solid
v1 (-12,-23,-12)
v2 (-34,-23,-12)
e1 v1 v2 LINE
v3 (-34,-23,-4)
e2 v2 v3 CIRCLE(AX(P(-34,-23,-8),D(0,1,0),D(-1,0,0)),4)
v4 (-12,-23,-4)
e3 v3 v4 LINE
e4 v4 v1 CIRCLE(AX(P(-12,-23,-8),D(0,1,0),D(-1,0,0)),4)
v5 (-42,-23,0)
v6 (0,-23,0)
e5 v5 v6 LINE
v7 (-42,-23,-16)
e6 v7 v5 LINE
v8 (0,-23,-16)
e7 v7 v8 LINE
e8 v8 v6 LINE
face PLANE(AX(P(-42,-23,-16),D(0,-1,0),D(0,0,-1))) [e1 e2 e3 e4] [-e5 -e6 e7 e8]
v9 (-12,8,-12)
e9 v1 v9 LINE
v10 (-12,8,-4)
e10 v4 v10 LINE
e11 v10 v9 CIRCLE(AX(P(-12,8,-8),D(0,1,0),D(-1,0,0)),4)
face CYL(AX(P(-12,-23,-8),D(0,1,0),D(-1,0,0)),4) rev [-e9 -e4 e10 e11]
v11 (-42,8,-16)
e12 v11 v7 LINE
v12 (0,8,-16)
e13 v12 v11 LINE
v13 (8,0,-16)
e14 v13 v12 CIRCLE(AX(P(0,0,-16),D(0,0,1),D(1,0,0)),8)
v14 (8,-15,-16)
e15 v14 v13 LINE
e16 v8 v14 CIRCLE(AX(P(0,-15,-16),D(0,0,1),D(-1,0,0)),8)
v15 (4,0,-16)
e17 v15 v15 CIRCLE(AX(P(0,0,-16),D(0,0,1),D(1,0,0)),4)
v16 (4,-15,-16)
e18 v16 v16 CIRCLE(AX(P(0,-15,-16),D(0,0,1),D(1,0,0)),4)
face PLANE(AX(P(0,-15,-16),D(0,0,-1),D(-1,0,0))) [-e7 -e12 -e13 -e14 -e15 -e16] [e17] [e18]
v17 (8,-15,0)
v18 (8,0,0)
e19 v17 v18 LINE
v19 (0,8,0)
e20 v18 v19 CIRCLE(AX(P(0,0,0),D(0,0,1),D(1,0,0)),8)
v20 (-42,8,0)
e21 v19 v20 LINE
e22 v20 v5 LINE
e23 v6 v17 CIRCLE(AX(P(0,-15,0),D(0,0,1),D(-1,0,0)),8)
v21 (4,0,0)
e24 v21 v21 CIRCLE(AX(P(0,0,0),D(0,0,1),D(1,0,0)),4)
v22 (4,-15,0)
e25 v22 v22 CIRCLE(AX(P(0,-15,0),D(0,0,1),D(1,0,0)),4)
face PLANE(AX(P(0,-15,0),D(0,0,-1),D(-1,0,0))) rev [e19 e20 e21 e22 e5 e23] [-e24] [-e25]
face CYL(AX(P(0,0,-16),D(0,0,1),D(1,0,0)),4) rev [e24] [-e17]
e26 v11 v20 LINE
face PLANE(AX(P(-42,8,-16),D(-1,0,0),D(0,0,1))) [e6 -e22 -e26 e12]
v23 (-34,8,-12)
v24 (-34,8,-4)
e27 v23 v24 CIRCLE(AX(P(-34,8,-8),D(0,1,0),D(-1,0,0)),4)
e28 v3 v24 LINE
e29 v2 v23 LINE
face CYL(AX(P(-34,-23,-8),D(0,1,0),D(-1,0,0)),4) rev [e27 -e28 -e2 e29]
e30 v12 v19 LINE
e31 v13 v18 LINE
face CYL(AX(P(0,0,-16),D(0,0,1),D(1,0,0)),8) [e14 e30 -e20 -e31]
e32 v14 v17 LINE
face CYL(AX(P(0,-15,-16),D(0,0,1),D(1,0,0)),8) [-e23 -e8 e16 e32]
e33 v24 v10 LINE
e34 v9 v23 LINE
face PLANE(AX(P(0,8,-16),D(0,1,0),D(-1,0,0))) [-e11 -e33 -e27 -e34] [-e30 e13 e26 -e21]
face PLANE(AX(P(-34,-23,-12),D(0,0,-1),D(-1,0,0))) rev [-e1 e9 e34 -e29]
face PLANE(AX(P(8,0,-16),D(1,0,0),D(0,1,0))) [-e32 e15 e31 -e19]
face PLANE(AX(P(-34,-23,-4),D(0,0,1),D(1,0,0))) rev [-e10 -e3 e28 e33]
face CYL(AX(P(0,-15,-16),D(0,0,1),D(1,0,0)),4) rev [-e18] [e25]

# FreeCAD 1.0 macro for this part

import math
import FreeCAD as App
import Part
import Sketcher
from FreeCAD import Vector

doc = App.newDocument("Part")
body = doc.addObject("PartDesign::Body", "Body")

# Sketch on XY plane
sketch1 = doc.addObject("Sketcher::SketchObject", "Sketch")
body.addObject(sketch1)
sketch1.AttachmentSupport = (doc.XY_Plane, [""])
sketch1.MapMode = "FlatFace"
sketch1.addGeometry([
    Part.LineSegment(Vector(8, -15, 0), Vector(8, 0, 0)),  # 0
    Part.ArcOfCircle(Part.Circle(Vector(0, 0, 0), Vector(0, 0, 1), 8), math.radians(0), math.radians(90)),  # 1
    Part.LineSegment(Vector(0, 8, 0), Vector(-42, 8, 0)),  # 2
    Part.LineSegment(Vector(-42, 8, 0), Vector(-42, -23, 0)),  # 3
    Part.LineSegment(Vector(-42, -23, 0), Vector(0, -23, 0)),  # 4
    Part.ArcOfCircle(Part.Circle(Vector(0, -15, 0), Vector(0, 0, 1), 8), math.radians(-90), math.radians(0)),  # 5
    Part.Circle(Vector(0, -15, 0), Vector(0, 0, 1), 4),  # 6
    Part.Circle(Vector(0, 0, 0), Vector(0, 0, 1), 4),  # 7
], False)
sketch1.addConstraint([
    Sketcher.Constraint("Tangent", 0, 2, 1, 1),
    Sketcher.Constraint("Tangent", 1, 2, 2, 1),
    Sketcher.Constraint("Coincident", 2, 2, 3, 1),
    Sketcher.Constraint("Coincident", 3, 2, 4, 1),
    Sketcher.Constraint("Tangent", 4, 2, 5, 1),
    Sketcher.Constraint("Tangent", 5, 2, 0, 1),
    Sketcher.Constraint("Vertical", 0),
    Sketcher.Constraint("Horizontal", 2),
    Sketcher.Constraint("Vertical", 3),
    Sketcher.Constraint("Horizontal", 4),
    Sketcher.Constraint("Coincident", 1, 3, -1, 1),
    Sketcher.Constraint("Coincident", 7, 3, -1, 1),
    Sketcher.Constraint("Coincident", 6, 3, 5, 3),
    Sketcher.Constraint("Equal", 1, 5),
    Sketcher.Constraint("Equal", 6, 7),
    Sketcher.Constraint("Diameter", 6, 8.0),
    Sketcher.Constraint("Radius", 1, 8.0),
    Sketcher.Constraint("DistanceX", 2, 2, 2, 1, 42.0),
    Sketcher.Constraint("DistanceY", 0, 1, 0, 2, 15.0),
])
pad1 = doc.addObject("PartDesign::Pad", "Pad")
body.addObject(pad1)
pad1.Profile = sketch1
pad1.Length = 16
pad1.Reversed = True

# Sketch on XZ plane
sketch2 = doc.addObject("Sketcher::SketchObject", "Sketch001")
body.addObject(sketch2)
sketch2.AttachmentSupport = (doc.XZ_Plane, [""])
sketch2.MapMode = "FlatFace"
sketch2.AttachmentOffset = App.Placement(Vector(0, 0, -8), App.Rotation())
sketch2.addGeometry([
    Part.LineSegment(Vector(-12, -12, 0), Vector(-34, -12, 0)),
    Part.ArcOfCircle(Part.Circle(Vector(-34, -8, 0), Vector(0, 0, 1), 4), math.radians(90), math.radians(270)),
    Part.LineSegment(Vector(-34, -4, 0), Vector(-12, -4, 0)),
    Part.ArcOfCircle(Part.Circle(Vector(-12, -8, 0), Vector(0, 0, 1), 4), math.radians(-90), math.radians(90)),
], False)
sketch2.addConstraint([
    Sketcher.Constraint("Tangent", 0, 2, 1, 2),
    Sketcher.Constraint("Tangent", 1, 1, 2, 1),
    Sketcher.Constraint("Tangent", 2, 2, 3, 2),
    Sketcher.Constraint("Tangent", 3, 1, 0, 1),
    Sketcher.Constraint("Horizontal", 0),
    Sketcher.Constraint("Horizontal", 2),
    Sketcher.Constraint("Radius", 1, 4.0),
    Sketcher.Constraint("DistanceX", 0, 2, 0, 1, 22.0),
    Sketcher.Constraint("DistanceX", 1, 3, -1, 1, 34.0),
    Sketcher.Constraint("DistanceY", 1, 3, -1, 1, 8.0),
])
pocket1 = doc.addObject("PartDesign::Pocket", "Pocket")
body.addObject(pocket1)
pocket1.Profile = sketch2
pocket1.Type = "ThroughAll"
pocket1.Reversed = True

doc.recompute()
